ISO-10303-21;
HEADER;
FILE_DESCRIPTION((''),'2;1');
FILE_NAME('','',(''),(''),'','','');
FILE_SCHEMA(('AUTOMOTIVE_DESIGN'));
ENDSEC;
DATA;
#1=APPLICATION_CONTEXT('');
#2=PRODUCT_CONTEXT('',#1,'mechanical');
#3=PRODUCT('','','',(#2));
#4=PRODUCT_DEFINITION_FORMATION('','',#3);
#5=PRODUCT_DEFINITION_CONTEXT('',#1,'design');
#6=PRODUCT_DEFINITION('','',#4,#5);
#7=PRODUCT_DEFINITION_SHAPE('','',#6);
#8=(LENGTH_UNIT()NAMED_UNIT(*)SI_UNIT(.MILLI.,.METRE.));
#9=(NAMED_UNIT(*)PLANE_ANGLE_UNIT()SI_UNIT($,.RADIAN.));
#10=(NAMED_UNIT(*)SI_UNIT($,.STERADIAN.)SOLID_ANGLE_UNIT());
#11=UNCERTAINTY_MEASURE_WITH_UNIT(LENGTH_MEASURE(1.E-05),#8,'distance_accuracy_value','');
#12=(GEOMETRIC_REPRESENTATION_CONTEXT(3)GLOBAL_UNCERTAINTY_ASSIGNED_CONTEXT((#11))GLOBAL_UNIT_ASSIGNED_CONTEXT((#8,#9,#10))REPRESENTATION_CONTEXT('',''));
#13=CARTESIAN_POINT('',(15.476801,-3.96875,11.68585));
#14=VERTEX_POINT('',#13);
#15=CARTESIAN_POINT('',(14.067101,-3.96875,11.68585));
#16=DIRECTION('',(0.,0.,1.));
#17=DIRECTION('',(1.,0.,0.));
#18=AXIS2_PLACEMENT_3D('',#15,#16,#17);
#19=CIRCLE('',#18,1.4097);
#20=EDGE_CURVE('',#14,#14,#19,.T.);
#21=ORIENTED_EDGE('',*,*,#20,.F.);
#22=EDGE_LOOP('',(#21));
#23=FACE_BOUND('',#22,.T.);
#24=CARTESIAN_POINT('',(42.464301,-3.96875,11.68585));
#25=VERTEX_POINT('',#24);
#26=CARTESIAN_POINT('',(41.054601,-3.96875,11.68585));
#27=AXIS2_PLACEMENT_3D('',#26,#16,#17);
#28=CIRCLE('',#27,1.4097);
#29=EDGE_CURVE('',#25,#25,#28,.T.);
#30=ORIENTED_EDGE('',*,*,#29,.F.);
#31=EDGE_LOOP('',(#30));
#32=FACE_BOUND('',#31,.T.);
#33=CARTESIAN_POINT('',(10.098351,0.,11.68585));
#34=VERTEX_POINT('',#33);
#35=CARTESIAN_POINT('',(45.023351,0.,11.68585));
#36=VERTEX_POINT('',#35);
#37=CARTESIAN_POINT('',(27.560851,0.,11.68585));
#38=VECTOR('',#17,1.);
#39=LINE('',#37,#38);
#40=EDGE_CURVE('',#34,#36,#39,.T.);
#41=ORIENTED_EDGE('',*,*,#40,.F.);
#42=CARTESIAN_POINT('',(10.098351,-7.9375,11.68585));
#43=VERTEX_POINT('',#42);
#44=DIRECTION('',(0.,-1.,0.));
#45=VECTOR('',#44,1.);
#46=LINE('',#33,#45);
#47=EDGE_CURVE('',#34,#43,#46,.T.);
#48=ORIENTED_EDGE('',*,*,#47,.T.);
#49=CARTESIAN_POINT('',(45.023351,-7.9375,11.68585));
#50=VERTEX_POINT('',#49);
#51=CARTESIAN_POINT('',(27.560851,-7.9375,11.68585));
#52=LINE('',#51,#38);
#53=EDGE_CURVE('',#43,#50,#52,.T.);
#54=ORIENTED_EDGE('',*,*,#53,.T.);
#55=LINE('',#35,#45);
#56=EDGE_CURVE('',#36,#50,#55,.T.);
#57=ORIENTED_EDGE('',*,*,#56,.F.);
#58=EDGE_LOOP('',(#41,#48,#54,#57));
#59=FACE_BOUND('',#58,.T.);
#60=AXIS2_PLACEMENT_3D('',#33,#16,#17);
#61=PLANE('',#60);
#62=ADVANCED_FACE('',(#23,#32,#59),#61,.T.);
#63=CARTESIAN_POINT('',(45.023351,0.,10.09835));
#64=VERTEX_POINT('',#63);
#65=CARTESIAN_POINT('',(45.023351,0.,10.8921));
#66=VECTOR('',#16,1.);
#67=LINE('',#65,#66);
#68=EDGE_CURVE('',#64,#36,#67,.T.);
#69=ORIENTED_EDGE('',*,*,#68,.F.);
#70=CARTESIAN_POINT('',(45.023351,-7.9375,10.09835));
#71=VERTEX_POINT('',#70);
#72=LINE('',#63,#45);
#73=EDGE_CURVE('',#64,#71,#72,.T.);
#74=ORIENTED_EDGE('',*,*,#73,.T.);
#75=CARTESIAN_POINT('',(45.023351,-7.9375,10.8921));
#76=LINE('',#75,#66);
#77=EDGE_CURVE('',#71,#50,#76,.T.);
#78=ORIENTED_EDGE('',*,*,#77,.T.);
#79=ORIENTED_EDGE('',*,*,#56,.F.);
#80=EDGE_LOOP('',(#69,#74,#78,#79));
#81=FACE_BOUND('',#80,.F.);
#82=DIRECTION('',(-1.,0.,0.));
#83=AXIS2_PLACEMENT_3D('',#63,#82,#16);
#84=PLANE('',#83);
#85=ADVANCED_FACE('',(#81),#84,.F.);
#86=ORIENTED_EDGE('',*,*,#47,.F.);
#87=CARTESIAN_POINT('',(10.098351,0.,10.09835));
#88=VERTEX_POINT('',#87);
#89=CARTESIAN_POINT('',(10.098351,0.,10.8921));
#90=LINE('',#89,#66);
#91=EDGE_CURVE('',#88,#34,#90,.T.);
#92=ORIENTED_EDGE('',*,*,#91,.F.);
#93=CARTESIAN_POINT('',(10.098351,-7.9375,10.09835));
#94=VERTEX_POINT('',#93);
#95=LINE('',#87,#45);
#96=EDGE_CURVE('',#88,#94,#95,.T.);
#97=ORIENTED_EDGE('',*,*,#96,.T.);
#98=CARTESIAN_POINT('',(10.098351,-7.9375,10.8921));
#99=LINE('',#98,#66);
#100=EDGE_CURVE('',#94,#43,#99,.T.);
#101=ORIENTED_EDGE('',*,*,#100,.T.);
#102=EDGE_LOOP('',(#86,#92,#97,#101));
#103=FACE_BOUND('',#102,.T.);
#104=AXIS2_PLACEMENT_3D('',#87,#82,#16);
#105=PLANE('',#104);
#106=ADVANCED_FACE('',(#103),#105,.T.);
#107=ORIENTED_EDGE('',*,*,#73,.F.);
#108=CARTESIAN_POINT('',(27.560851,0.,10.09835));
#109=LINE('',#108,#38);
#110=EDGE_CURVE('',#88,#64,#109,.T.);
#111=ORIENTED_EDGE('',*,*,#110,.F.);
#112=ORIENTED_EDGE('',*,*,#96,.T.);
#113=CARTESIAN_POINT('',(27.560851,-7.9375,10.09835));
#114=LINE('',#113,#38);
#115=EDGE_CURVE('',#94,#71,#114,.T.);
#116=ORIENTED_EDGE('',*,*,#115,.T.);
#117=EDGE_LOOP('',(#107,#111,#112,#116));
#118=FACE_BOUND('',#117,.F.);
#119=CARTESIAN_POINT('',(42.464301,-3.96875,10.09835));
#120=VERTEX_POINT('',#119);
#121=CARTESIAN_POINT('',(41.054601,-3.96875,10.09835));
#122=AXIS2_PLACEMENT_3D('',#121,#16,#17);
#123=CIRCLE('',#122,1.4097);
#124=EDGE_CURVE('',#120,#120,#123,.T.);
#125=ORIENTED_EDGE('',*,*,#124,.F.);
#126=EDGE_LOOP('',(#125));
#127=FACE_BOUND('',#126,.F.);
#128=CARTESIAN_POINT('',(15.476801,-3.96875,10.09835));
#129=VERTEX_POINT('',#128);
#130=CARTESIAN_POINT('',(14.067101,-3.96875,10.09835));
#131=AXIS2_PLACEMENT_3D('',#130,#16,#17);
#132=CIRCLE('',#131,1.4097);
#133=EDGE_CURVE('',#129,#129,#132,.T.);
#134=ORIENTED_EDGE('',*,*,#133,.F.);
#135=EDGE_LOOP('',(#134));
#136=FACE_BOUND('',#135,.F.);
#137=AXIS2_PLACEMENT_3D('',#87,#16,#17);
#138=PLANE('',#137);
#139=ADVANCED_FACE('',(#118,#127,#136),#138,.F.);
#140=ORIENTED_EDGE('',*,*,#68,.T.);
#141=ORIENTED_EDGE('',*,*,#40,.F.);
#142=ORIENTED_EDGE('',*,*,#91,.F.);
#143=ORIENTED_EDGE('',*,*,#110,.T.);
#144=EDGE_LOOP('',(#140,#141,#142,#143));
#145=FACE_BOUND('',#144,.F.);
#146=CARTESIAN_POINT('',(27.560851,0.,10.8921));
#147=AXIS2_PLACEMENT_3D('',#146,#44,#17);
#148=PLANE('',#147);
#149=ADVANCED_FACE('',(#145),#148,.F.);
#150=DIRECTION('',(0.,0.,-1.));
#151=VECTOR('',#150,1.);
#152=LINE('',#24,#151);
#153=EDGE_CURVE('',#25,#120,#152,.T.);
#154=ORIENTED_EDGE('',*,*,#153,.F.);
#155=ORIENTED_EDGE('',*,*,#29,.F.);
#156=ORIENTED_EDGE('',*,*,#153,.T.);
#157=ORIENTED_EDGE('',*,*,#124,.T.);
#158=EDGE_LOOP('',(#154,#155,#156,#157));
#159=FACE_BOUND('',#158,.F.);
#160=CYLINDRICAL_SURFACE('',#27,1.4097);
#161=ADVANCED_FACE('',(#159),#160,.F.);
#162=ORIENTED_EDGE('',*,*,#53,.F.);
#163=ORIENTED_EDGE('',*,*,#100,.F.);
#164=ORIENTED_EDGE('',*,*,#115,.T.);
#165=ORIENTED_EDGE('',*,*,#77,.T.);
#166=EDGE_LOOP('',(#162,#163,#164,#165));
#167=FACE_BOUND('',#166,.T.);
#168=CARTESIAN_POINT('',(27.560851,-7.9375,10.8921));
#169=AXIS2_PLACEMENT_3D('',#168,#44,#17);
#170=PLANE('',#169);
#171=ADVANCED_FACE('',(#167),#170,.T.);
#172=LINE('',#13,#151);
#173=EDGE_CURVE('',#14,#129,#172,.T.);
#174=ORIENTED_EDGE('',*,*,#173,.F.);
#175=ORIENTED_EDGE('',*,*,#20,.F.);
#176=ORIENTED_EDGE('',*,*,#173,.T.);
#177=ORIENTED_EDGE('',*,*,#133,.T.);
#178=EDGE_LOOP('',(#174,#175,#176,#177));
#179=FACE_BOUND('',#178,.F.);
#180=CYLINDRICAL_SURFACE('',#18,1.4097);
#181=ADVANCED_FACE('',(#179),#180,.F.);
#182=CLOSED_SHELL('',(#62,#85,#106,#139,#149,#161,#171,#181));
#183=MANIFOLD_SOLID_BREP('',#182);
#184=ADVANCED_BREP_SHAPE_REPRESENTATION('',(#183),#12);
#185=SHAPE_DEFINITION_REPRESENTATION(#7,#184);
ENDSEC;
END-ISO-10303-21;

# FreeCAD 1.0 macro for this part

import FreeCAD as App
import Part
import Sketcher
from FreeCAD import Vector
Q = App.Units.Quantity

doc = App.newDocument("Part")
body = doc.addObject("PartDesign::Body", "Body")

# Sketch on XZ plane
sketch1 = body.newObject("Sketcher::SketchObject", "Sketch")
sketch1.AttachmentSupport = (doc.getObject("XZ_Plane"), [""])
sketch1.MapMode = "FlatFace"
sketch1.addGeometry([
    Part.LineSegment(Vector(10.1, 11.7, 0), Vector(10.1, 10.1, 0)),
    Part.LineSegment(Vector(10.1, 10.1, 0), Vector(45, 10.1, 0)),
    Part.LineSegment(Vector(45, 10.1, 0), Vector(45, 11.7, 0)),
    Part.LineSegment(Vector(45, 11.7, 0), Vector(10.1, 11.7, 0)),
], False)
sketch1.addConstraint([
    Sketcher.Constraint("Coincident", 0, 2, 1, 1),
    Sketcher.Constraint("Coincident", 1, 2, 2, 1),
    Sketcher.Constraint("Coincident", 2, 2, 3, 1),
    Sketcher.Constraint("Coincident", 3, 2, 0, 1),
    Sketcher.Constraint("Vertical", 0),
    Sketcher.Constraint("Horizontal", 1),
    Sketcher.Constraint("Vertical", 2),
    Sketcher.Constraint("Horizontal", 3),
    Sketcher.Constraint("DistanceX", 1, 1, 1, 2, Q("1.375 in")),
    Sketcher.Constraint("DistanceY", 0, 2, 0, 1, Q("0.0625 in")),
    Sketcher.Constraint("DistanceX", -1, 1, 0, 2, Q("10.098351 mm")),
    Sketcher.Constraint("DistanceY", -1, 1, 0, 2, Q("10.09835 mm")),
])
pad1 = body.newObject("PartDesign::Pad", "Pad")
pad1.Profile = sketch1
pad1.Length = Q("0.3125 in")

# Sketch on XY plane
sketch2 = body.newObject("Sketcher::SketchObject", "Sketch001")
sketch2.AttachmentSupport = (doc.getObject("XY_Plane"), [""])
sketch2.MapMode = "FlatFace"
sketch2.AttachmentOffset = App.Placement(Vector(0, 0, 11.68585), App.Rotation())
sketch2.addGeometry([
    Part.Circle(Vector(14.1, -4, 0), Vector(0, 0, 1), 1.4),
    Part.Circle(Vector(41.1, -4, 0), Vector(0, 0, 1), 1.4),
], False)
sketch2.addConstraint([
    Sketcher.Constraint("Equal", 0, 1),
    Sketcher.Constraint("Horizontal", 0, 3, 1, 3),
    Sketcher.Constraint("Diameter", 0, Q("0.111 in")),
    Sketcher.Constraint("DistanceY", 0, 3, -1, 1, Q("0.15625 in")),
    Sketcher.Constraint("DistanceX", 0, 3, 1, 3, Q("1.0625 in")),
    Sketcher.Constraint("DistanceX", -1, 1, 0, 3, Q("14.067101 mm")),
])
pocket1 = body.newObject("PartDesign::Pocket", "Pocket")
pocket1.Profile = sketch2
pocket1.Length = Q("0.0625 in")

doc.recompute()
